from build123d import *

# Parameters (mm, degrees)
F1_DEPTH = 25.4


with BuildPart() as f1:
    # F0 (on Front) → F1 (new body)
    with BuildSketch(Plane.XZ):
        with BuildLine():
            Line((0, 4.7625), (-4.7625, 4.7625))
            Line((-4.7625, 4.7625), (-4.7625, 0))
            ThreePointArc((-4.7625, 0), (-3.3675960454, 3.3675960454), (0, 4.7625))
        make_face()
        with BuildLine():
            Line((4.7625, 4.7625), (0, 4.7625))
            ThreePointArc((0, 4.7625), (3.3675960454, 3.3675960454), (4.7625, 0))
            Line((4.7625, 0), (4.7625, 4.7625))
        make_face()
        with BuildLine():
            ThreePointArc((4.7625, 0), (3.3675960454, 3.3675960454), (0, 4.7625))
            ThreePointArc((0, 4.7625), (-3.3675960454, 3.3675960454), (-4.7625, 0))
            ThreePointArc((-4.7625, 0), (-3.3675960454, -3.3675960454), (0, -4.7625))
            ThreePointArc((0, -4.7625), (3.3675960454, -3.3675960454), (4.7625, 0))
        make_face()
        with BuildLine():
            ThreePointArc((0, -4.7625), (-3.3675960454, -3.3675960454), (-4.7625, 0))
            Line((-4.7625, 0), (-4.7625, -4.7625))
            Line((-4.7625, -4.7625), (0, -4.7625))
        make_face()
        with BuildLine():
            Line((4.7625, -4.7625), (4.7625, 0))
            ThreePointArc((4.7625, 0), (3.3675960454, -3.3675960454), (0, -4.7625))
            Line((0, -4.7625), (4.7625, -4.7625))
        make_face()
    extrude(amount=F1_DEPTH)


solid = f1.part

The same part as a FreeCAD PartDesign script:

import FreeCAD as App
import Part
import Sketcher

V = App.Vector
Q = App.Units.Quantity


def add_polygon(sketch, points):
    """Adds a closed chain of lines whose ends are joined by coincident constraints."""
    first, n = sketch.GeometryCount, len(points)
    for a, b in zip(points, points[1:] + points[:1]):
        sketch.addGeometry(Part.LineSegment(App.Vector(*a, 0), App.Vector(*b, 0)), False)
    for i in range(n):
        sketch.addConstraint(Sketcher.Constraint("Coincident", first + i, 2, first + (i + 1) % n, 1))

doc = App.newDocument("Part")
params = doc.addObject("Spreadsheet::Sheet", "Params")
for row, (alias, value) in enumerate([
    ("sketch1_width", "0.375 in"),
    ("pad1_length", "1 in"),
], start=1):
    params.set(f"A{row}", alias)
    params.set(f"B{row}", "=" + value)
    params.setAlias(f"B{row}", alias)

body = doc.addObject("PartDesign::Body", "Body")

sketch1 = doc.addObject("Sketcher::SketchObject", "Sketch")
body.addObject(sketch1)
sketch1.AttachmentSupport = (doc.XZ_Plane, [""])
sketch1.MapMode = "FlatFace"
add_polygon(sketch1, [(-5, 5), (-5, -5), (5, -5), (5, 5)])
sketch1.addConstraint([
    Sketcher.Constraint("Vertical", 0),
    Sketcher.Constraint("Horizontal", 1),
    Sketcher.Constraint("Vertical", 2),
    Sketcher.Constraint("Horizontal", 3),
    Sketcher.Constraint("Symmetric", 0, 2, 2, 2, -1, 1),
    Sketcher.Constraint("Equal", 3, 0),
    Sketcher.Constraint("DistanceX", 1, 1, 1, 2, Q("0.375 in")),
])
sketch1.setExpression("Constraints[10]", "Params.sketch1_width")
pad1 = doc.addObject("PartDesign::Pad", "Pad")
body.addObject(pad1)
pad1.Profile = sketch1
pad1.setExpression("Length", "Params.pad1_length")

doc.recompute()
